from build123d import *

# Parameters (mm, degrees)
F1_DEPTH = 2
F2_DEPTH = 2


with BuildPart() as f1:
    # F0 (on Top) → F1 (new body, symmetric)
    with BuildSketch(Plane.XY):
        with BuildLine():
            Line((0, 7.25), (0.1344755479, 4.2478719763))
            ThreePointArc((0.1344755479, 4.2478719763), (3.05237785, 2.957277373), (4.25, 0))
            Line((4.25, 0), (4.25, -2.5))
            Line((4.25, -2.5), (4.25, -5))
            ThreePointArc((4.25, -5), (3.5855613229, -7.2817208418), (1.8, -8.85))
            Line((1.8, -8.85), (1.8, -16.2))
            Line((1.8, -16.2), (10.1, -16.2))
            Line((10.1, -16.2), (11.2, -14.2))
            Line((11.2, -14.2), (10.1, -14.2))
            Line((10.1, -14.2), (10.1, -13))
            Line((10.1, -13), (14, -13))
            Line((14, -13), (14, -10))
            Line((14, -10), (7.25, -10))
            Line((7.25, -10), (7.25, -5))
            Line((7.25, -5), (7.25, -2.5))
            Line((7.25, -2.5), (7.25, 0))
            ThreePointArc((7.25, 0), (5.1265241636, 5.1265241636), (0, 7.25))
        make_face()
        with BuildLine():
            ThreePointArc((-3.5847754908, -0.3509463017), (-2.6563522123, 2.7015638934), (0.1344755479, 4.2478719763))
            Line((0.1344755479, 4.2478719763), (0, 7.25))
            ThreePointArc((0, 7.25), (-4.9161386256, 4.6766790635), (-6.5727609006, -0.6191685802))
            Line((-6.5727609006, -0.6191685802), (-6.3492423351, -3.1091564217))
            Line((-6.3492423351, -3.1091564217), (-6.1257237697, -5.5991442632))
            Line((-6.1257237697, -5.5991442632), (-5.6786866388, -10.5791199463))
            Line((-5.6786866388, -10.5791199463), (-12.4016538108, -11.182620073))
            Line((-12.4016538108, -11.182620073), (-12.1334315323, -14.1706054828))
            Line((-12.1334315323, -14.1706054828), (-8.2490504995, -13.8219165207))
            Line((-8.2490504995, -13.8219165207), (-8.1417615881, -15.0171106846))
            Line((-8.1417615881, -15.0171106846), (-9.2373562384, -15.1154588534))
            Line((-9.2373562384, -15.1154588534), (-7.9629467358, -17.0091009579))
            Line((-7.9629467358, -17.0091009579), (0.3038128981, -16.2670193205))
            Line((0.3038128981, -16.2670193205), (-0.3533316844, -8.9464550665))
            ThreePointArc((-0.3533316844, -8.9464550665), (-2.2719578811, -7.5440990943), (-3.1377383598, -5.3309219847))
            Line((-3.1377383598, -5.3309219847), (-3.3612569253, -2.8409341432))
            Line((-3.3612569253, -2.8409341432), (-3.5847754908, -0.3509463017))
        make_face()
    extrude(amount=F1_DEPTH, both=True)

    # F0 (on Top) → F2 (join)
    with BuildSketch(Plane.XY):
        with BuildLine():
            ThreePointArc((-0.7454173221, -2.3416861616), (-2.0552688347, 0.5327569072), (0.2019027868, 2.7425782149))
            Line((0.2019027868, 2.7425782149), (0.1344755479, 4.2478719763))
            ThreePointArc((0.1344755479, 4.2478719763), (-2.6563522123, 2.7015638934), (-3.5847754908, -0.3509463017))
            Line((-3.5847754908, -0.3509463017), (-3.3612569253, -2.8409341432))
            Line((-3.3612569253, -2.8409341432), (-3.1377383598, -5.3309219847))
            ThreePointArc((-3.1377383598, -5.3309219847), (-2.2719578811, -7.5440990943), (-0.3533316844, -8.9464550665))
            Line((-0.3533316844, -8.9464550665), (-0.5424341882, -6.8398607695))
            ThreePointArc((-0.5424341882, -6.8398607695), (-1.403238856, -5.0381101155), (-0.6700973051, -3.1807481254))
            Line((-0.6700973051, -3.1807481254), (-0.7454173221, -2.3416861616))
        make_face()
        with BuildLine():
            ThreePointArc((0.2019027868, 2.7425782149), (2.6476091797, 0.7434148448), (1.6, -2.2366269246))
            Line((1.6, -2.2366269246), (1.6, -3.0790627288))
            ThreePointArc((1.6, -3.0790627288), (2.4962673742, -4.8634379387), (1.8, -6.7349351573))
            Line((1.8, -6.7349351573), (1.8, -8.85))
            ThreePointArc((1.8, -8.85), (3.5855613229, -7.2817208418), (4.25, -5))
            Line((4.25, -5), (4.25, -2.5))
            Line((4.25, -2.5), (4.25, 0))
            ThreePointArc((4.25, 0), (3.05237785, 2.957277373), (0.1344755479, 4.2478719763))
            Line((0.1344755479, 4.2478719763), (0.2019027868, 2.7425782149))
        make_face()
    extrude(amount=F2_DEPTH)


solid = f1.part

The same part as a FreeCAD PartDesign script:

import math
import FreeCAD as App
import Part
import Sketcher
from FreeCAD import Vector
Q = App.Units.Quantity

doc = App.newDocument("Part")
body = doc.addObject("PartDesign::Body", "Body")

# Sketch on XY plane
sketch1 = body.newObject("Sketcher::SketchObject", "Sketch")
sketch1.AttachmentSupport = (doc.getObject("XY_Plane"), [""])
sketch1.MapMode = "FlatFace"
sketch1.addGeometry([
    Part.ArcOfCircle(Part.Circle(Vector(0, 0, 0), Vector(0, 0, 1), 7.25), math.radians(0), math.radians(90)),  # 0
    Part.ArcOfCircle(Part.Circle(Vector(0.648204, 0.029035, 0), Vector(0, 0, 1), 7.25), math.radians(95.129518), math.radians(185.129518)),  # 1
    Part.LineSegment(Vector(-6.572761, -0.619169, 0), Vector(-6.349242, -3.109156, 0)),  # 2
    Part.LineSegment(Vector(-6.349242, -3.109156, 0), Vector(-6.125724, -5.599144, 0)),  # 3
    Part.LineSegment(Vector(-6.125724, -5.599144, 0), Vector(-5.678687, -10.57912, 0)),  # 4
    Part.LineSegment(Vector(-5.678687, -10.57912, 0), Vector(-12.401654, -11.18262, 0)),  # 5
    Part.LineSegment(Vector(-12.401654, -11.18262, 0), Vector(-12.133432, -14.170605, 0)),  # 6
    Part.LineSegment(Vector(-12.133432, -14.170605, 0), Vector(-8.24905, -13.821917, 0)),  # 7
    Part.LineSegment(Vector(-8.24905, -13.821917, 0), Vector(-8.141762, -15.017111, 0)),  # 8
    Part.LineSegment(Vector(-8.141762, -15.017111, 0), Vector(-9.237356, -15.115459, 0)),  # 9
    Part.LineSegment(Vector(-9.237356, -15.115459, 0), Vector(-7.962947, -17.009101, 0)),  # 10
    Part.LineSegment(Vector(-7.962947, -17.009101, 0), Vector(0.303813, -16.267019, 0)),  # 11
    Part.LineSegment(Vector(0.303813, -16.267019, 0), Vector(-0.353332, -8.946455, 0)),  # 12
    Part.ArcOfCircle(Part.Circle(Vector(1.095241, -4.95094, 0), Vector(0, 0, 1), 4.25), math.radians(-174.870482), math.radians(-109.928098)),  # 13
    Part.LineSegment(Vector(-3.137738, -5.330922, 0), Vector(-3.584775, -0.350946, 0)),  # 14
    Part.ArcOfCircle(Part.Circle(Vector(0.648204, 0.029035, 0), Vector(0, 0, 1), 4.25), math.radians(96.942734), math.radians(185.129518)),  # 15
    Part.ArcOfCircle(Part.Circle(Vector(0, 0, 0), Vector(0, 0, 1), 4.25), math.radians(0), math.radians(88.186784)),  # 16
    Part.LineSegment(Vector(4.25, 0, 0), Vector(4.25, -5, 0)),  # 17
    Part.ArcOfCircle(Part.Circle(Vector(0, -5, 0), Vector(0, 0, 1), 4.25), math.radians(-64.942385), math.radians(0)),  # 18
    Part.LineSegment(Vector(1.8, -8.85, 0), Vector(1.8, -16.2, 0)),  # 19
    Part.LineSegment(Vector(1.8, -16.2, 0), Vector(10.1, -16.2, 0)),  # 20
    Part.LineSegment(Vector(10.1, -16.2, 0), Vector(11.2, -14.2, 0)),  # 21
    Part.LineSegment(Vector(11.2, -14.2, 0), Vector(10.1, -14.2, 0)),  # 22
    Part.LineSegment(Vector(10.1, -14.2, 0), Vector(10.1, -13, 0)),  # 23
    Part.LineSegment(Vector(10.1, -13, 0), Vector(14, -13, 0)),  # 24
    Part.LineSegment(Vector(14, -13, 0), Vector(14, -10, 0)),  # 25
    Part.LineSegment(Vector(14, -10, 0), Vector(7.25, -10, 0)),  # 26
    Part.LineSegment(Vector(7.25, -10, 0), Vector(7.25, 0, 0)),  # 27
], False)
sketch1.addConstraint([
    Sketcher.Constraint("Coincident", 0, 2, 1, 1),
    Sketcher.Constraint("Tangent", 1, 2, 2, 1),
    Sketcher.Constraint("Coincident", 2, 2, 3, 1),
    Sketcher.Constraint("Coincident", 3, 2, 4, 1),
    Sketcher.Constraint("Coincident", 4, 2, 5, 1),
    Sketcher.Constraint("Coincident", 5, 2, 6, 1),
    Sketcher.Constraint("Coincident", 6, 2, 7, 1),
    Sketcher.Constraint("Coincident", 7, 2, 8, 1),
    Sketcher.Constraint("Coincident", 8, 2, 9, 1),
    Sketcher.Constraint("Coincident", 9, 2, 10, 1),
    Sketcher.Constraint("Coincident", 10, 2, 11, 1),
    Sketcher.Constraint("Coincident", 11, 2, 12, 1),
    Sketcher.Constraint("Coincident", 12, 2, 13, 2),
    Sketcher.Constraint("Tangent", 13, 1, 14, 1),
    Sketcher.Constraint("Tangent", 14, 2, 15, 2),
    Sketcher.Constraint("Coincident", 15, 1, 16, 2),
    Sketcher.Constraint("Tangent", 16, 1, 17, 1),
    Sketcher.Constraint("Tangent", 17, 2, 18, 2),
    Sketcher.Constraint("Coincident", 18, 1, 19, 1),
    Sketcher.Constraint("Coincident", 19, 2, 20, 1),
    Sketcher.Constraint("Coincident", 20, 2, 21, 1),
    Sketcher.Constraint("Coincident", 21, 2, 22, 1),
    Sketcher.Constraint("Coincident", 22, 2, 23, 1),
    Sketcher.Constraint("Coincident", 23, 2, 24, 1),
    Sketcher.Constraint("Coincident", 24, 2, 25, 1),
    Sketcher.Constraint("Coincident", 25, 2, 26, 1),
    Sketcher.Constraint("Coincident", 26, 2, 27, 1),
    Sketcher.Constraint("Tangent", 27, 2, 0, 1),
    Sketcher.Constraint("Vertical", 17),
    Sketcher.Constraint("Vertical", 19),
    Sketcher.Constraint("Horizontal", 20),
    Sketcher.Constraint("Horizontal", 22),
    Sketcher.Constraint("Vertical", 23),
    Sketcher.Constraint("Horizontal", 24),
    Sketcher.Constraint("Vertical", 25),
    Sketcher.Constraint("Horizontal", 26),
    Sketcher.Constraint("Vertical", 27),
    Sketcher.Constraint("Coincident", 0, 3, -1, 1),
    Sketcher.Constraint("Coincident", 16, 3, -1, 1),
    Sketcher.Constraint("Coincident", 15, 3, 1, 3),
    Sketcher.Constraint("Equal", 0, 1),
    Sketcher.Constraint("Equal", 13, 15),
    Sketcher.Constraint("Equal", 15, 16),
    Sketcher.Constraint("Equal", 16, 18),
    Sketcher.Constraint("PointOnObject", 0, 2, -2),
    Sketcher.Constraint("Parallel", 2, 3),
    Sketcher.Constraint("Parallel", 3, 4),
    Sketcher.Constraint("Perpendicular", 4, 5),
    Sketcher.Constraint("Perpendicular", 5, 6),
    Sketcher.Constraint("Perpendicular", 6, 7),
    Sketcher.Constraint("Perpendicular", 7, 8),
    Sketcher.Constraint("Perpendicular", 8, 9),
    Sketcher.Constraint("Parallel", 9, 11),
    Sketcher.Constraint("Perpendicular", 11, 12),
    Sketcher.Constraint("Parallel", 12, 14),
    Sketcher.Constraint("Vertical", 20, 2, 22, 2),
    Sketcher.Constraint("Equal", 2, 3),
    Sketcher.Constraint("Equal", 4, 14),
    Sketcher.Constraint("Equal", 10, 21),
    Sketcher.Constraint("DistanceY", 17, 2, 17, 1, Q("5 mm")),
    Sketcher.Constraint("DistanceY", 25, 1, 25, 2, Q("3 mm")),
    Sketcher.Constraint("DistanceY", 27, 1, 27, 2, Q("10 mm")),
    Sketcher.Constraint("Radius", 0, Q("7.25 mm")),
    Sketcher.Constraint("Radius", 13, Q("4.25 mm")),
    Sketcher.Constraint("Distance", 4, Q("5 mm")),
    Sketcher.Constraint("Distance", 6, Q("3 mm")),
    Sketcher.Constraint("DistanceX", 20, 1, 20, 2, Q("8.3 mm")),
    Sketcher.Constraint("DistanceX", 22, 2, 22, 1, Q("1.1 mm")),
    Sketcher.Constraint("DistanceX", 24, 1, 24, 2, Q("3.9 mm")),
    Sketcher.Constraint("DistanceY", 23, 1, 23, 2, Q("1.2 mm")),
    Sketcher.Constraint("DistanceX", -1, 1, 24, 2, Q("14 mm")),
    Sketcher.Constraint("DistanceY", 20, 2, 21, 2, Q("2 mm")),
    Sketcher.Constraint("Distance", 2, Q("2.5 mm")),
    Sketcher.Constraint("Distance", 7, Q("3.9 mm")),
    Sketcher.Constraint("Distance", 8, Q("1.2 mm")),
    Sketcher.Constraint("Distance", 9, Q("1.1 mm")),
    Sketcher.Constraint("Distance", 11, Q("8.3 mm")),
    Sketcher.Constraint("Distance", 5, Q("6.75 mm")),
    Sketcher.Constraint("Distance", 12, Q("7.35 mm")),
    Sketcher.Constraint("DistanceY", 10, 2, -1, 1, Q("17.009101 mm")),
    Sketcher.Constraint("DistanceY", 5, 2, 4, 2, Q("0.6035 mm")),
])
pad1 = body.newObject("PartDesign::Pad", "Pad")
pad1.Profile = sketch1
pad1.Length = 4
pad1.Midplane = True

# Sketch on XY plane
sketch2 = body.newObject("Sketcher::SketchObject", "Sketch001")
sketch2.AttachmentSupport = (doc.getObject("XY_Plane"), [""])
sketch2.MapMode = "FlatFace"
sketch2.addGeometry([
    Part.ArcOfCircle(Part.Circle(Vector(0.648204, 0.029035, 0), Vector(0, 0, 1), 2.75), math.radians(99.339916), math.radians(239.550992)),  # 0
    Part.ArcOfCircle(Part.Circle(Vector(0, 0, 0), Vector(0, 0, 1), 2.75), math.radians(-54.421474), math.radians(85.789602)),  # 1
    Part.LineSegment(Vector(1.6, -2.236627, 0), Vector(1.6, -3.079063, 0)),  # 2
    Part.ArcOfCircle(Part.Circle(Vector(0, -5, 0), Vector(0, 0, 1), 2.5), math.radians(-43.94552), math.radians(50.20818)),  # 3
    Part.LineSegment(Vector(1.8, -6.734935, 0), Vector(1.8, -8.85, 0)),  # 4
    Part.ArcOfCircle(Part.Circle(Vector(0, -5, 0), Vector(0, 0, 1), 4.25), math.radians(-64.942385), math.radians(0)),  # 5
    Part.LineSegment(Vector(4.25, -5, 0), Vector(4.25, 0, 0)),  # 6
    Part.ArcOfCircle(Part.Circle(Vector(0, 0, 0), Vector(0, 0, 1), 4.25), math.radians(0), math.radians(88.186784)),  # 7
    Part.ArcOfCircle(Part.Circle(Vector(0.648204, 0.029035, 0), Vector(0, 0, 1), 4.25), math.radians(96.942734), math.radians(185.129518)),  # 8
    Part.LineSegment(Vector(-3.584775, -0.350946, 0), Vector(-3.137738, -5.330922, 0)),  # 9
    Part.ArcOfCircle(Part.Circle(Vector(1.095241, -4.95094, 0), Vector(0, 0, 1), 4.25), math.radians(-174.870482), math.radians(-109.928098)),  # 10
    Part.LineSegment(Vector(-0.353332, -8.946455, 0), Vector(-0.542434, -6.839861, 0)),  # 11
    Part.ArcOfCircle(Part.Circle(Vector(1.095241, -4.95094, 0), Vector(0, 0, 1), 2.5), math.radians(134.921337), math.radians(229.075037)),  # 12
    Part.LineSegment(Vector(-0.670097, -3.180748, 0), Vector(-0.745417, -2.341686, 0)),  # 13
], False)
sketch2.addConstraint([
    Sketcher.Constraint("Coincident", 0, 1, 1, 2),
    Sketcher.Constraint("Coincident", 1, 1, 2, 1),
    Sketcher.Constraint("Coincident", 2, 2, 3, 2),
    Sketcher.Constraint("Coincident", 3, 1, 4, 1),
    Sketcher.Constraint("Coincident", 4, 2, 5, 1),
    Sketcher.Constraint("Tangent", 5, 2, 6, 1),
    Sketcher.Constraint("Tangent", 6, 2, 7, 1),
    Sketcher.Constraint("Coincident", 7, 2, 8, 1),
    Sketcher.Constraint("Tangent", 8, 2, 9, 1),
    Sketcher.Constraint("Tangent", 9, 2, 10, 1),
    Sketcher.Constraint("Coincident", 10, 2, 11, 1),
    Sketcher.Constraint("Coincident", 11, 2, 12, 2),
    Sketcher.Constraint("Coincident", 12, 1, 13, 1),
    Sketcher.Constraint("Coincident", 13, 2, 0, 2),
    Sketcher.Constraint("Vertical", 2),
    Sketcher.Constraint("Vertical", 4),
    Sketcher.Constraint("Vertical", 6),
    Sketcher.Constraint("Coincident", 1, 3, -1, 1),
    Sketcher.Constraint("Coincident", 7, 3, -1, 1),
    Sketcher.Constraint("Coincident", 5, 3, 3, 3),
    Sketcher.Constraint("Coincident", 8, 3, 0, 3),
    Sketcher.Constraint("Coincident", 12, 3, 10, 3),
    Sketcher.Constraint("Equal", 0, 1),
    Sketcher.Constraint("Equal", 5, 7),
    Sketcher.Constraint("Equal", 7, 8),
    Sketcher.Constraint("Equal", 8, 10),
    Sketcher.Constraint("Equal", 3, 12),
    Sketcher.Constraint("Parallel", 9, 11),
    Sketcher.Constraint("Parallel", 11, 13),
    Sketcher.Constraint("Radius", 3, Q("2.5 mm")),
    Sketcher.Constraint("DistanceY", 6, 1, 6, 2, Q("5 mm")),
    Sketcher.Constraint("Radius", 0, Q("2.75 mm")),
    Sketcher.Constraint("Radius", 5, Q("4.25 mm")),
    Sketcher.Constraint("Distance", 9, Q("5 mm")),
    Sketcher.Constraint("DistanceX", -1, 1, 1, 1, Q("1.6 mm")),
    Sketcher.Constraint("DistanceX", -1, 1, 3, 1, Q("1.8 mm")),
    Sketcher.Constraint("DistanceX", 0, 1, 0, 3, Q("0.446301 mm")),
    Sketcher.Constraint("DistanceX", -1, 1, 10, 3, Q("1.095241 mm")),
    Sketcher.Constraint("DistanceY", 10, 3, -1, 1, Q("4.95094 mm")),
    Sketcher.Constraint("DistanceX", 10, 2, -1, 1, Q("0.353332 mm")),
    Sketcher.Constraint("DistanceY", 12, 1, -1, 1, Q("3.180748 mm")),
])
pad2 = body.newObject("PartDesign::Pad", "Pad001")
pad2.Profile = sketch2
pad2.Length = 2

doc.recompute()
